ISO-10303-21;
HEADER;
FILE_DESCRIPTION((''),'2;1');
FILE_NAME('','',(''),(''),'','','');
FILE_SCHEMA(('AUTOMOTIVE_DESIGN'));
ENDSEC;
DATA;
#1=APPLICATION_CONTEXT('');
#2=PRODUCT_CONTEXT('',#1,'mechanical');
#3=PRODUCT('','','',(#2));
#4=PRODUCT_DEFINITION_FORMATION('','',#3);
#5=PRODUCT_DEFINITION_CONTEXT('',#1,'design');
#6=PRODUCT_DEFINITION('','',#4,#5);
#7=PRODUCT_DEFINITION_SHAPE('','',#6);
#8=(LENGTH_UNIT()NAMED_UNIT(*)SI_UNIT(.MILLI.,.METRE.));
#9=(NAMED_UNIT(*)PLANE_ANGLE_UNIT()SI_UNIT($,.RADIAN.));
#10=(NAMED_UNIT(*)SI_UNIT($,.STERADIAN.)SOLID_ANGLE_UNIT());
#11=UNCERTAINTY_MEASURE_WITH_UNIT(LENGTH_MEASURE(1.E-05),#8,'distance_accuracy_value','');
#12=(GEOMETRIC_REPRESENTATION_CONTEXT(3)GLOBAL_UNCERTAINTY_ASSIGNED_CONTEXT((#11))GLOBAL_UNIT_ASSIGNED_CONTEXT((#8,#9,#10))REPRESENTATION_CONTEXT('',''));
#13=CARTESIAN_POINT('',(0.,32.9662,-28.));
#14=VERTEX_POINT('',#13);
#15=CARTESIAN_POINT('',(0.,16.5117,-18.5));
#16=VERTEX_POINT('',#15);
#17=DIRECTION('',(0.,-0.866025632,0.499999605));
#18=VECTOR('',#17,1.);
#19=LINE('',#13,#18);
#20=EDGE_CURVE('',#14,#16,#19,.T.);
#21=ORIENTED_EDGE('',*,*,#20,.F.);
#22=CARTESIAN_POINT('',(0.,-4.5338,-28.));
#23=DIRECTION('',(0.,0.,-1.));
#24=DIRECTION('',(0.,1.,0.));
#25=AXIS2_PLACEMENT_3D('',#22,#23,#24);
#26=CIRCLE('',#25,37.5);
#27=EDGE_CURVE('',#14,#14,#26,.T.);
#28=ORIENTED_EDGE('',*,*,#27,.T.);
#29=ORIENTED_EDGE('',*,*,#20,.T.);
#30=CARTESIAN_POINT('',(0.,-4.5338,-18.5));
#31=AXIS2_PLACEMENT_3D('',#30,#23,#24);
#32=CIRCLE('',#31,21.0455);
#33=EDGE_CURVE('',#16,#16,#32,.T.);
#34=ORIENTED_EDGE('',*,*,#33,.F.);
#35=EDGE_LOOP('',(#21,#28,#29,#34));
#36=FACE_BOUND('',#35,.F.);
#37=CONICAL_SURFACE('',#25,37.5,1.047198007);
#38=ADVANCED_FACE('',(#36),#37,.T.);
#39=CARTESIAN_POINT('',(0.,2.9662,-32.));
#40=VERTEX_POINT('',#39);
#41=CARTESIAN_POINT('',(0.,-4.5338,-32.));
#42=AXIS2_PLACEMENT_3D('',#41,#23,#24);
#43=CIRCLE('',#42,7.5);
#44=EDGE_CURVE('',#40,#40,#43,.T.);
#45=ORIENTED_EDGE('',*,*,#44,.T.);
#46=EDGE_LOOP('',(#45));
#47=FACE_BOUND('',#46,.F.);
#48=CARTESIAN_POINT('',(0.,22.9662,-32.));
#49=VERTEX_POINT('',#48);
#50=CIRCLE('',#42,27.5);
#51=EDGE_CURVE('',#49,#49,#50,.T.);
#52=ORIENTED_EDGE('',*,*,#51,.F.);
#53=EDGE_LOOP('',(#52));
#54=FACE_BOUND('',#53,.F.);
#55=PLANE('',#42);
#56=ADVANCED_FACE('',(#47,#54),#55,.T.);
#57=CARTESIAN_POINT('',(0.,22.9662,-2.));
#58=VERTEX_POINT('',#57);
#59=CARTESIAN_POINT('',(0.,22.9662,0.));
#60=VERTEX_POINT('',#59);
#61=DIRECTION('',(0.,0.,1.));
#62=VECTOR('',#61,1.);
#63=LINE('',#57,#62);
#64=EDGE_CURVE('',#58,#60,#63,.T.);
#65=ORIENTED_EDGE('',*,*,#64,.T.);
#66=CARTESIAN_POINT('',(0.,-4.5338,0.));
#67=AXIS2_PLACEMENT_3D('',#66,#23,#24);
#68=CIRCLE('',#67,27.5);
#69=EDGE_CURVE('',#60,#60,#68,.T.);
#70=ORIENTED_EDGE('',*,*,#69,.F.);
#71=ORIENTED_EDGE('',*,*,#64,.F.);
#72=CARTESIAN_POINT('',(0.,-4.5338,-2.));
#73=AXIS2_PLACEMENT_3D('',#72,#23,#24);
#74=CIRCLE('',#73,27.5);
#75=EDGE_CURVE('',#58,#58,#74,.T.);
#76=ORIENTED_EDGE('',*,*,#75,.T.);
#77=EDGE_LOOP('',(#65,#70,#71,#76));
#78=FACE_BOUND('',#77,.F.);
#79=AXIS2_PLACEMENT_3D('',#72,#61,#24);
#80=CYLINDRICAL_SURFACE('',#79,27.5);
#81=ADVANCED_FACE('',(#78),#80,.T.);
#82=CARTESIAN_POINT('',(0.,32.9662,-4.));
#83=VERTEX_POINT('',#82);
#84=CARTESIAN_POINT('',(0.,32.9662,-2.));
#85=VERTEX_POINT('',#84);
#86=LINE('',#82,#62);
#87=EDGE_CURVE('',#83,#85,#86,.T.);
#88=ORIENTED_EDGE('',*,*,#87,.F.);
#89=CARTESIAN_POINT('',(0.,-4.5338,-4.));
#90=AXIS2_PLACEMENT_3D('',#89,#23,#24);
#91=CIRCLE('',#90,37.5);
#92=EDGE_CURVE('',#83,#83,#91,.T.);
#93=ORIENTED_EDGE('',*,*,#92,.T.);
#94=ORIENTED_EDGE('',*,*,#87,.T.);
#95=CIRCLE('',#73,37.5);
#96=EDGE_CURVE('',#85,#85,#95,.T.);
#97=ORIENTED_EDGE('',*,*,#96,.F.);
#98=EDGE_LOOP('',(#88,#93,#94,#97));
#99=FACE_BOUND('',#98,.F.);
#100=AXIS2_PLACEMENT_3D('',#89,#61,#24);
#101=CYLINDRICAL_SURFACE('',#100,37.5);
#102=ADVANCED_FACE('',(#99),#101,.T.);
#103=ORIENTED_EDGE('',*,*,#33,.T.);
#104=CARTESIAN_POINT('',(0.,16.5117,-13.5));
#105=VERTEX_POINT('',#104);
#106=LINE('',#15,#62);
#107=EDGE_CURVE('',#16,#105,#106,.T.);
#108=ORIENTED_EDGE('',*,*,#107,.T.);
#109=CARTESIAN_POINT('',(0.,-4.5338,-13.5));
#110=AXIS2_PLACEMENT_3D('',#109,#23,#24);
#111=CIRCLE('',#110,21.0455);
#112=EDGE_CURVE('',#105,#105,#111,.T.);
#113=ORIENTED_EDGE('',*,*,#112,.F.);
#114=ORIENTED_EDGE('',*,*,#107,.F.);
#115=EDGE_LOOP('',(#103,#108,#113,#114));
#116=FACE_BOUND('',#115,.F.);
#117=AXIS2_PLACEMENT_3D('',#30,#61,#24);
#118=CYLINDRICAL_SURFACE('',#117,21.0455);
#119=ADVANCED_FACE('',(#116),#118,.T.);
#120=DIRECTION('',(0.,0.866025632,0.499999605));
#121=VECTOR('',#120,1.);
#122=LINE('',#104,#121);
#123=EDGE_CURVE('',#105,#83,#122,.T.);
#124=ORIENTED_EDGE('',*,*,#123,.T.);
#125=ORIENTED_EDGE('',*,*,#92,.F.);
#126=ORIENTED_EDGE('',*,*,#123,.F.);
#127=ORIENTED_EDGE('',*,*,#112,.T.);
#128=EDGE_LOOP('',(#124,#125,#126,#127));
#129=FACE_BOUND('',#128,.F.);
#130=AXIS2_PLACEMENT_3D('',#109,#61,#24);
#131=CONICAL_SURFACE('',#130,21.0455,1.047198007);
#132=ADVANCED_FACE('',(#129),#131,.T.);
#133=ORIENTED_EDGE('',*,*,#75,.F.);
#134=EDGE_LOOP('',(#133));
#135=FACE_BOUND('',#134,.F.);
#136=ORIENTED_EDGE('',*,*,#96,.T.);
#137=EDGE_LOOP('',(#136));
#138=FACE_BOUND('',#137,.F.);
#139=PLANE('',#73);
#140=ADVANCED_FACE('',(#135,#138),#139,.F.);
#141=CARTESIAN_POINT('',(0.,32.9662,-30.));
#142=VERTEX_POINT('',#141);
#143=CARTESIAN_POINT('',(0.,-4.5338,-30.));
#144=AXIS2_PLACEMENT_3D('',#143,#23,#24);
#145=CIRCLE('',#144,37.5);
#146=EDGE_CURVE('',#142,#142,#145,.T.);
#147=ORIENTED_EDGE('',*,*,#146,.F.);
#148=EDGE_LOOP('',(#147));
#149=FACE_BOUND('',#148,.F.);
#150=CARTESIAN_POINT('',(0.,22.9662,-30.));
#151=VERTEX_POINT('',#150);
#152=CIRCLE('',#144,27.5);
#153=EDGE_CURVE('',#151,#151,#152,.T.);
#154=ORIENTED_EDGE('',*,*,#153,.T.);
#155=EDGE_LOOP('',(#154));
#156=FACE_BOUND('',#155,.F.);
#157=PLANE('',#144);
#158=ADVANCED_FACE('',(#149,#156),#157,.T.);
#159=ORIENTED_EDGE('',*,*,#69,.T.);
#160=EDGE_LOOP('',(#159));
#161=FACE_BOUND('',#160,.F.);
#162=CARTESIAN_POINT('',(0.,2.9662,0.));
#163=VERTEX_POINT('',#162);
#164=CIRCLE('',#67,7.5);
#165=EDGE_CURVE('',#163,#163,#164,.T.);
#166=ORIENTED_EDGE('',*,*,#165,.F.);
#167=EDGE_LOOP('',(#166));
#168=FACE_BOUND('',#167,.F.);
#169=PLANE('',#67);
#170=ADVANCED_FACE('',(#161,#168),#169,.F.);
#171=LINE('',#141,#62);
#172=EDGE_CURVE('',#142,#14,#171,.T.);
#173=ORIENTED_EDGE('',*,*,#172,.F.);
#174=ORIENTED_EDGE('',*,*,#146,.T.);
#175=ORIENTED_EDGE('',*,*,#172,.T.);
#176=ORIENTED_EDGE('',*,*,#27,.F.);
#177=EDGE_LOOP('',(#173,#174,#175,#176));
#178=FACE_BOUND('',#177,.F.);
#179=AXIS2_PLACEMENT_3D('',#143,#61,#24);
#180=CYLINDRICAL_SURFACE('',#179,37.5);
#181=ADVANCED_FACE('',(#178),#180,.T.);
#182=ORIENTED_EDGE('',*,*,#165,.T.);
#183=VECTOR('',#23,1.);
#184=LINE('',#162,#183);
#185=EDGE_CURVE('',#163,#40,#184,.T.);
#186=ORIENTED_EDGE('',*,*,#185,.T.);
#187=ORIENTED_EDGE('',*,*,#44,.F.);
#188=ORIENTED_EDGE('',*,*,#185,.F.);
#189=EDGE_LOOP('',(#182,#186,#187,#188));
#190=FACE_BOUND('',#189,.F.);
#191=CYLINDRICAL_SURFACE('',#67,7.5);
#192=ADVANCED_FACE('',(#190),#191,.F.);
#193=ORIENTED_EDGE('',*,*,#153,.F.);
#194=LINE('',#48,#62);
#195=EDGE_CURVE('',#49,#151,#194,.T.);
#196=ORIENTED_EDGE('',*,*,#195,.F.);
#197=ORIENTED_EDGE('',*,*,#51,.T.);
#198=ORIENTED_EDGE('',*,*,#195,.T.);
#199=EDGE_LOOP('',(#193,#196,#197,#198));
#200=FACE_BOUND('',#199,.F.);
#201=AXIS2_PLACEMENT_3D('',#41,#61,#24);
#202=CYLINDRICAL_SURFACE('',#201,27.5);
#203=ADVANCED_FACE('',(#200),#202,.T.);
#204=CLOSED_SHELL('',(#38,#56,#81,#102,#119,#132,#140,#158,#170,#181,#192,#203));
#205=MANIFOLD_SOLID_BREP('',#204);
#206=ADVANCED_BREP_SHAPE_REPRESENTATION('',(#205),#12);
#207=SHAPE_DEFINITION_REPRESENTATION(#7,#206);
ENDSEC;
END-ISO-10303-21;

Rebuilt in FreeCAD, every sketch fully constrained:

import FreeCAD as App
import Part
import Sketcher
from FreeCAD import Vector
Q = App.Units.Quantity

doc = App.newDocument("Part")
body = doc.addObject("PartDesign::Body", "Body")

sketch1 = body.newObject("Sketcher::SketchObject", "Sketch")
sketch1.AttachmentSupport = (doc.getObject("YZ_Plane"), [""])
sketch1.MapMode = "FlatFace"
sketch1.addGeometry(Part.LineSegment(Vector(23, 0, 0), Vector(3, 0, 0)), False)
sketch1.addGeometry(Part.LineSegment(Vector(3, 0, 0), Vector(3, -32, 0)), False)
sketch1.addGeometry(Part.LineSegment(Vector(3, -32, 0), Vector(23, -32, 0)), False)
sketch1.addGeometry(Part.LineSegment(Vector(23, -32, 0), Vector(23, -30, 0)), False)
sketch1.addGeometry(Part.LineSegment(Vector(23, -30, 0), Vector(33, -30, 0)), False)
sketch1.addGeometry(Part.LineSegment(Vector(33, -30, 0), Vector(33, -28, 0)), False)
sketch1.addGeometry(Part.LineSegment(Vector(33, -28, 0), Vector(16.5, -18.5, 0)), False)
sketch1.addGeometry(Part.LineSegment(Vector(16.5, -18.5, 0), Vector(16.5, -13.5, 0)), False)
sketch1.addGeometry(Part.LineSegment(Vector(16.5, -13.5, 0), Vector(33, -4, 0)), False)
sketch1.addGeometry(Part.LineSegment(Vector(33, -4, 0), Vector(33, -2, 0)), False)
sketch1.addGeometry(Part.LineSegment(Vector(33, -2, 0), Vector(23, -2, 0)), False)
sketch1.addGeometry(Part.LineSegment(Vector(23, -2, 0), Vector(23, 0, 0)), False)
sketch1.addGeometry(Part.LineSegment(Vector(-4.5, 0, 0), Vector(-4.5, -32, 0)), True)
sketch1.addConstraint(Sketcher.Constraint("Coincident", 0, 2, 1, 1))
sketch1.addConstraint(Sketcher.Constraint("Coincident", 1, 2, 2, 1))
sketch1.addConstraint(Sketcher.Constraint("Coincident", 2, 2, 3, 1))
sketch1.addConstraint(Sketcher.Constraint("Coincident", 3, 2, 4, 1))
sketch1.addConstraint(Sketcher.Constraint("Coincident", 4, 2, 5, 1))
sketch1.addConstraint(Sketcher.Constraint("Coincident", 5, 2, 6, 1))
sketch1.addConstraint(Sketcher.Constraint("Coincident", 6, 2, 7, 1))
sketch1.addConstraint(Sketcher.Constraint("Coincident", 7, 2, 8, 1))
sketch1.addConstraint(Sketcher.Constraint("Coincident", 8, 2, 9, 1))
sketch1.addConstraint(Sketcher.Constraint("Coincident", 9, 2, 10, 1))
sketch1.addConstraint(Sketcher.Constraint("Coincident", 10, 2, 11, 1))
sketch1.addConstraint(Sketcher.Constraint("Coincident", 11, 2, 0, 1))
sketch1.addConstraint(Sketcher.Constraint("Horizontal", 0))
sketch1.addConstraint(Sketcher.Constraint("Vertical", 1))
sketch1.addConstraint(Sketcher.Constraint("Horizontal", 2))
sketch1.addConstraint(Sketcher.Constraint("Vertical", 3))
sketch1.addConstraint(Sketcher.Constraint("Horizontal", 4))
sketch1.addConstraint(Sketcher.Constraint("Vertical", 5))
sketch1.addConstraint(Sketcher.Constraint("Vertical", 7))
sketch1.addConstraint(Sketcher.Constraint("Vertical", 9))
sketch1.addConstraint(Sketcher.Constraint("Horizontal", 10))
sketch1.addConstraint(Sketcher.Constraint("Vertical", 11))
sketch1.addConstraint(Sketcher.Constraint("Vertical", 12))
sketch1.addConstraint(Sketcher.Constraint("PointOnObject", 0, 2, -1))
sketch1.addConstraint(Sketcher.Constraint("PointOnObject", 12, 1, -1))
sketch1.addConstraint(Sketcher.Constraint("Horizontal", 2, 2, 12, 2))
sketch1.addConstraint(Sketcher.Constraint("Vertical", 5, 2, 8, 2))
sketch1.addConstraint(Sketcher.Constraint("Vertical", 3, 2, 10, 2))
sketch1.addConstraint(Sketcher.Constraint("Equal", 3, 5))
sketch1.addConstraint(Sketcher.Constraint("Equal", 5, 9))
sketch1.addConstraint(Sketcher.Constraint("Equal", 9, 11))
sketch1.addConstraint(Sketcher.Constraint("Equal", 6, 8))
sketch1.addConstraint(Sketcher.Constraint("DistanceX", 0, 2, 0, 1, 20.0))
sketch1.addConstraint(Sketcher.Constraint("DistanceX", 4, 1, 4, 2, 10.0))
sketch1.addConstraint(Sketcher.Constraint("DistanceY", 1, 2, 1, 1, 32.0))
sketch1.addConstraint(Sketcher.Constraint("DistanceY", 3, 1, 3, 2, 2.0))
sketch1.addConstraint(Sketcher.Constraint("DistanceY", 7, 1, 7, 2, 5.0))
sketch1.addConstraint(Sketcher.Constraint("Angle", 8, Q("30 deg")))
sketch1.addConstraint(Sketcher.Constraint("DistanceX", -1, 1, 4, 2, 32.9662))
sketch1.addConstraint(Sketcher.Constraint("DistanceX", 12, 1, 0, 2, 7.5))
revolution = body.newObject("PartDesign::Revolution", "Revolution")
revolution.Profile = sketch1
revolution.ReferenceAxis = (sketch1, ["Axis0"])
revolution.Angle = 360

doc.recompute()
